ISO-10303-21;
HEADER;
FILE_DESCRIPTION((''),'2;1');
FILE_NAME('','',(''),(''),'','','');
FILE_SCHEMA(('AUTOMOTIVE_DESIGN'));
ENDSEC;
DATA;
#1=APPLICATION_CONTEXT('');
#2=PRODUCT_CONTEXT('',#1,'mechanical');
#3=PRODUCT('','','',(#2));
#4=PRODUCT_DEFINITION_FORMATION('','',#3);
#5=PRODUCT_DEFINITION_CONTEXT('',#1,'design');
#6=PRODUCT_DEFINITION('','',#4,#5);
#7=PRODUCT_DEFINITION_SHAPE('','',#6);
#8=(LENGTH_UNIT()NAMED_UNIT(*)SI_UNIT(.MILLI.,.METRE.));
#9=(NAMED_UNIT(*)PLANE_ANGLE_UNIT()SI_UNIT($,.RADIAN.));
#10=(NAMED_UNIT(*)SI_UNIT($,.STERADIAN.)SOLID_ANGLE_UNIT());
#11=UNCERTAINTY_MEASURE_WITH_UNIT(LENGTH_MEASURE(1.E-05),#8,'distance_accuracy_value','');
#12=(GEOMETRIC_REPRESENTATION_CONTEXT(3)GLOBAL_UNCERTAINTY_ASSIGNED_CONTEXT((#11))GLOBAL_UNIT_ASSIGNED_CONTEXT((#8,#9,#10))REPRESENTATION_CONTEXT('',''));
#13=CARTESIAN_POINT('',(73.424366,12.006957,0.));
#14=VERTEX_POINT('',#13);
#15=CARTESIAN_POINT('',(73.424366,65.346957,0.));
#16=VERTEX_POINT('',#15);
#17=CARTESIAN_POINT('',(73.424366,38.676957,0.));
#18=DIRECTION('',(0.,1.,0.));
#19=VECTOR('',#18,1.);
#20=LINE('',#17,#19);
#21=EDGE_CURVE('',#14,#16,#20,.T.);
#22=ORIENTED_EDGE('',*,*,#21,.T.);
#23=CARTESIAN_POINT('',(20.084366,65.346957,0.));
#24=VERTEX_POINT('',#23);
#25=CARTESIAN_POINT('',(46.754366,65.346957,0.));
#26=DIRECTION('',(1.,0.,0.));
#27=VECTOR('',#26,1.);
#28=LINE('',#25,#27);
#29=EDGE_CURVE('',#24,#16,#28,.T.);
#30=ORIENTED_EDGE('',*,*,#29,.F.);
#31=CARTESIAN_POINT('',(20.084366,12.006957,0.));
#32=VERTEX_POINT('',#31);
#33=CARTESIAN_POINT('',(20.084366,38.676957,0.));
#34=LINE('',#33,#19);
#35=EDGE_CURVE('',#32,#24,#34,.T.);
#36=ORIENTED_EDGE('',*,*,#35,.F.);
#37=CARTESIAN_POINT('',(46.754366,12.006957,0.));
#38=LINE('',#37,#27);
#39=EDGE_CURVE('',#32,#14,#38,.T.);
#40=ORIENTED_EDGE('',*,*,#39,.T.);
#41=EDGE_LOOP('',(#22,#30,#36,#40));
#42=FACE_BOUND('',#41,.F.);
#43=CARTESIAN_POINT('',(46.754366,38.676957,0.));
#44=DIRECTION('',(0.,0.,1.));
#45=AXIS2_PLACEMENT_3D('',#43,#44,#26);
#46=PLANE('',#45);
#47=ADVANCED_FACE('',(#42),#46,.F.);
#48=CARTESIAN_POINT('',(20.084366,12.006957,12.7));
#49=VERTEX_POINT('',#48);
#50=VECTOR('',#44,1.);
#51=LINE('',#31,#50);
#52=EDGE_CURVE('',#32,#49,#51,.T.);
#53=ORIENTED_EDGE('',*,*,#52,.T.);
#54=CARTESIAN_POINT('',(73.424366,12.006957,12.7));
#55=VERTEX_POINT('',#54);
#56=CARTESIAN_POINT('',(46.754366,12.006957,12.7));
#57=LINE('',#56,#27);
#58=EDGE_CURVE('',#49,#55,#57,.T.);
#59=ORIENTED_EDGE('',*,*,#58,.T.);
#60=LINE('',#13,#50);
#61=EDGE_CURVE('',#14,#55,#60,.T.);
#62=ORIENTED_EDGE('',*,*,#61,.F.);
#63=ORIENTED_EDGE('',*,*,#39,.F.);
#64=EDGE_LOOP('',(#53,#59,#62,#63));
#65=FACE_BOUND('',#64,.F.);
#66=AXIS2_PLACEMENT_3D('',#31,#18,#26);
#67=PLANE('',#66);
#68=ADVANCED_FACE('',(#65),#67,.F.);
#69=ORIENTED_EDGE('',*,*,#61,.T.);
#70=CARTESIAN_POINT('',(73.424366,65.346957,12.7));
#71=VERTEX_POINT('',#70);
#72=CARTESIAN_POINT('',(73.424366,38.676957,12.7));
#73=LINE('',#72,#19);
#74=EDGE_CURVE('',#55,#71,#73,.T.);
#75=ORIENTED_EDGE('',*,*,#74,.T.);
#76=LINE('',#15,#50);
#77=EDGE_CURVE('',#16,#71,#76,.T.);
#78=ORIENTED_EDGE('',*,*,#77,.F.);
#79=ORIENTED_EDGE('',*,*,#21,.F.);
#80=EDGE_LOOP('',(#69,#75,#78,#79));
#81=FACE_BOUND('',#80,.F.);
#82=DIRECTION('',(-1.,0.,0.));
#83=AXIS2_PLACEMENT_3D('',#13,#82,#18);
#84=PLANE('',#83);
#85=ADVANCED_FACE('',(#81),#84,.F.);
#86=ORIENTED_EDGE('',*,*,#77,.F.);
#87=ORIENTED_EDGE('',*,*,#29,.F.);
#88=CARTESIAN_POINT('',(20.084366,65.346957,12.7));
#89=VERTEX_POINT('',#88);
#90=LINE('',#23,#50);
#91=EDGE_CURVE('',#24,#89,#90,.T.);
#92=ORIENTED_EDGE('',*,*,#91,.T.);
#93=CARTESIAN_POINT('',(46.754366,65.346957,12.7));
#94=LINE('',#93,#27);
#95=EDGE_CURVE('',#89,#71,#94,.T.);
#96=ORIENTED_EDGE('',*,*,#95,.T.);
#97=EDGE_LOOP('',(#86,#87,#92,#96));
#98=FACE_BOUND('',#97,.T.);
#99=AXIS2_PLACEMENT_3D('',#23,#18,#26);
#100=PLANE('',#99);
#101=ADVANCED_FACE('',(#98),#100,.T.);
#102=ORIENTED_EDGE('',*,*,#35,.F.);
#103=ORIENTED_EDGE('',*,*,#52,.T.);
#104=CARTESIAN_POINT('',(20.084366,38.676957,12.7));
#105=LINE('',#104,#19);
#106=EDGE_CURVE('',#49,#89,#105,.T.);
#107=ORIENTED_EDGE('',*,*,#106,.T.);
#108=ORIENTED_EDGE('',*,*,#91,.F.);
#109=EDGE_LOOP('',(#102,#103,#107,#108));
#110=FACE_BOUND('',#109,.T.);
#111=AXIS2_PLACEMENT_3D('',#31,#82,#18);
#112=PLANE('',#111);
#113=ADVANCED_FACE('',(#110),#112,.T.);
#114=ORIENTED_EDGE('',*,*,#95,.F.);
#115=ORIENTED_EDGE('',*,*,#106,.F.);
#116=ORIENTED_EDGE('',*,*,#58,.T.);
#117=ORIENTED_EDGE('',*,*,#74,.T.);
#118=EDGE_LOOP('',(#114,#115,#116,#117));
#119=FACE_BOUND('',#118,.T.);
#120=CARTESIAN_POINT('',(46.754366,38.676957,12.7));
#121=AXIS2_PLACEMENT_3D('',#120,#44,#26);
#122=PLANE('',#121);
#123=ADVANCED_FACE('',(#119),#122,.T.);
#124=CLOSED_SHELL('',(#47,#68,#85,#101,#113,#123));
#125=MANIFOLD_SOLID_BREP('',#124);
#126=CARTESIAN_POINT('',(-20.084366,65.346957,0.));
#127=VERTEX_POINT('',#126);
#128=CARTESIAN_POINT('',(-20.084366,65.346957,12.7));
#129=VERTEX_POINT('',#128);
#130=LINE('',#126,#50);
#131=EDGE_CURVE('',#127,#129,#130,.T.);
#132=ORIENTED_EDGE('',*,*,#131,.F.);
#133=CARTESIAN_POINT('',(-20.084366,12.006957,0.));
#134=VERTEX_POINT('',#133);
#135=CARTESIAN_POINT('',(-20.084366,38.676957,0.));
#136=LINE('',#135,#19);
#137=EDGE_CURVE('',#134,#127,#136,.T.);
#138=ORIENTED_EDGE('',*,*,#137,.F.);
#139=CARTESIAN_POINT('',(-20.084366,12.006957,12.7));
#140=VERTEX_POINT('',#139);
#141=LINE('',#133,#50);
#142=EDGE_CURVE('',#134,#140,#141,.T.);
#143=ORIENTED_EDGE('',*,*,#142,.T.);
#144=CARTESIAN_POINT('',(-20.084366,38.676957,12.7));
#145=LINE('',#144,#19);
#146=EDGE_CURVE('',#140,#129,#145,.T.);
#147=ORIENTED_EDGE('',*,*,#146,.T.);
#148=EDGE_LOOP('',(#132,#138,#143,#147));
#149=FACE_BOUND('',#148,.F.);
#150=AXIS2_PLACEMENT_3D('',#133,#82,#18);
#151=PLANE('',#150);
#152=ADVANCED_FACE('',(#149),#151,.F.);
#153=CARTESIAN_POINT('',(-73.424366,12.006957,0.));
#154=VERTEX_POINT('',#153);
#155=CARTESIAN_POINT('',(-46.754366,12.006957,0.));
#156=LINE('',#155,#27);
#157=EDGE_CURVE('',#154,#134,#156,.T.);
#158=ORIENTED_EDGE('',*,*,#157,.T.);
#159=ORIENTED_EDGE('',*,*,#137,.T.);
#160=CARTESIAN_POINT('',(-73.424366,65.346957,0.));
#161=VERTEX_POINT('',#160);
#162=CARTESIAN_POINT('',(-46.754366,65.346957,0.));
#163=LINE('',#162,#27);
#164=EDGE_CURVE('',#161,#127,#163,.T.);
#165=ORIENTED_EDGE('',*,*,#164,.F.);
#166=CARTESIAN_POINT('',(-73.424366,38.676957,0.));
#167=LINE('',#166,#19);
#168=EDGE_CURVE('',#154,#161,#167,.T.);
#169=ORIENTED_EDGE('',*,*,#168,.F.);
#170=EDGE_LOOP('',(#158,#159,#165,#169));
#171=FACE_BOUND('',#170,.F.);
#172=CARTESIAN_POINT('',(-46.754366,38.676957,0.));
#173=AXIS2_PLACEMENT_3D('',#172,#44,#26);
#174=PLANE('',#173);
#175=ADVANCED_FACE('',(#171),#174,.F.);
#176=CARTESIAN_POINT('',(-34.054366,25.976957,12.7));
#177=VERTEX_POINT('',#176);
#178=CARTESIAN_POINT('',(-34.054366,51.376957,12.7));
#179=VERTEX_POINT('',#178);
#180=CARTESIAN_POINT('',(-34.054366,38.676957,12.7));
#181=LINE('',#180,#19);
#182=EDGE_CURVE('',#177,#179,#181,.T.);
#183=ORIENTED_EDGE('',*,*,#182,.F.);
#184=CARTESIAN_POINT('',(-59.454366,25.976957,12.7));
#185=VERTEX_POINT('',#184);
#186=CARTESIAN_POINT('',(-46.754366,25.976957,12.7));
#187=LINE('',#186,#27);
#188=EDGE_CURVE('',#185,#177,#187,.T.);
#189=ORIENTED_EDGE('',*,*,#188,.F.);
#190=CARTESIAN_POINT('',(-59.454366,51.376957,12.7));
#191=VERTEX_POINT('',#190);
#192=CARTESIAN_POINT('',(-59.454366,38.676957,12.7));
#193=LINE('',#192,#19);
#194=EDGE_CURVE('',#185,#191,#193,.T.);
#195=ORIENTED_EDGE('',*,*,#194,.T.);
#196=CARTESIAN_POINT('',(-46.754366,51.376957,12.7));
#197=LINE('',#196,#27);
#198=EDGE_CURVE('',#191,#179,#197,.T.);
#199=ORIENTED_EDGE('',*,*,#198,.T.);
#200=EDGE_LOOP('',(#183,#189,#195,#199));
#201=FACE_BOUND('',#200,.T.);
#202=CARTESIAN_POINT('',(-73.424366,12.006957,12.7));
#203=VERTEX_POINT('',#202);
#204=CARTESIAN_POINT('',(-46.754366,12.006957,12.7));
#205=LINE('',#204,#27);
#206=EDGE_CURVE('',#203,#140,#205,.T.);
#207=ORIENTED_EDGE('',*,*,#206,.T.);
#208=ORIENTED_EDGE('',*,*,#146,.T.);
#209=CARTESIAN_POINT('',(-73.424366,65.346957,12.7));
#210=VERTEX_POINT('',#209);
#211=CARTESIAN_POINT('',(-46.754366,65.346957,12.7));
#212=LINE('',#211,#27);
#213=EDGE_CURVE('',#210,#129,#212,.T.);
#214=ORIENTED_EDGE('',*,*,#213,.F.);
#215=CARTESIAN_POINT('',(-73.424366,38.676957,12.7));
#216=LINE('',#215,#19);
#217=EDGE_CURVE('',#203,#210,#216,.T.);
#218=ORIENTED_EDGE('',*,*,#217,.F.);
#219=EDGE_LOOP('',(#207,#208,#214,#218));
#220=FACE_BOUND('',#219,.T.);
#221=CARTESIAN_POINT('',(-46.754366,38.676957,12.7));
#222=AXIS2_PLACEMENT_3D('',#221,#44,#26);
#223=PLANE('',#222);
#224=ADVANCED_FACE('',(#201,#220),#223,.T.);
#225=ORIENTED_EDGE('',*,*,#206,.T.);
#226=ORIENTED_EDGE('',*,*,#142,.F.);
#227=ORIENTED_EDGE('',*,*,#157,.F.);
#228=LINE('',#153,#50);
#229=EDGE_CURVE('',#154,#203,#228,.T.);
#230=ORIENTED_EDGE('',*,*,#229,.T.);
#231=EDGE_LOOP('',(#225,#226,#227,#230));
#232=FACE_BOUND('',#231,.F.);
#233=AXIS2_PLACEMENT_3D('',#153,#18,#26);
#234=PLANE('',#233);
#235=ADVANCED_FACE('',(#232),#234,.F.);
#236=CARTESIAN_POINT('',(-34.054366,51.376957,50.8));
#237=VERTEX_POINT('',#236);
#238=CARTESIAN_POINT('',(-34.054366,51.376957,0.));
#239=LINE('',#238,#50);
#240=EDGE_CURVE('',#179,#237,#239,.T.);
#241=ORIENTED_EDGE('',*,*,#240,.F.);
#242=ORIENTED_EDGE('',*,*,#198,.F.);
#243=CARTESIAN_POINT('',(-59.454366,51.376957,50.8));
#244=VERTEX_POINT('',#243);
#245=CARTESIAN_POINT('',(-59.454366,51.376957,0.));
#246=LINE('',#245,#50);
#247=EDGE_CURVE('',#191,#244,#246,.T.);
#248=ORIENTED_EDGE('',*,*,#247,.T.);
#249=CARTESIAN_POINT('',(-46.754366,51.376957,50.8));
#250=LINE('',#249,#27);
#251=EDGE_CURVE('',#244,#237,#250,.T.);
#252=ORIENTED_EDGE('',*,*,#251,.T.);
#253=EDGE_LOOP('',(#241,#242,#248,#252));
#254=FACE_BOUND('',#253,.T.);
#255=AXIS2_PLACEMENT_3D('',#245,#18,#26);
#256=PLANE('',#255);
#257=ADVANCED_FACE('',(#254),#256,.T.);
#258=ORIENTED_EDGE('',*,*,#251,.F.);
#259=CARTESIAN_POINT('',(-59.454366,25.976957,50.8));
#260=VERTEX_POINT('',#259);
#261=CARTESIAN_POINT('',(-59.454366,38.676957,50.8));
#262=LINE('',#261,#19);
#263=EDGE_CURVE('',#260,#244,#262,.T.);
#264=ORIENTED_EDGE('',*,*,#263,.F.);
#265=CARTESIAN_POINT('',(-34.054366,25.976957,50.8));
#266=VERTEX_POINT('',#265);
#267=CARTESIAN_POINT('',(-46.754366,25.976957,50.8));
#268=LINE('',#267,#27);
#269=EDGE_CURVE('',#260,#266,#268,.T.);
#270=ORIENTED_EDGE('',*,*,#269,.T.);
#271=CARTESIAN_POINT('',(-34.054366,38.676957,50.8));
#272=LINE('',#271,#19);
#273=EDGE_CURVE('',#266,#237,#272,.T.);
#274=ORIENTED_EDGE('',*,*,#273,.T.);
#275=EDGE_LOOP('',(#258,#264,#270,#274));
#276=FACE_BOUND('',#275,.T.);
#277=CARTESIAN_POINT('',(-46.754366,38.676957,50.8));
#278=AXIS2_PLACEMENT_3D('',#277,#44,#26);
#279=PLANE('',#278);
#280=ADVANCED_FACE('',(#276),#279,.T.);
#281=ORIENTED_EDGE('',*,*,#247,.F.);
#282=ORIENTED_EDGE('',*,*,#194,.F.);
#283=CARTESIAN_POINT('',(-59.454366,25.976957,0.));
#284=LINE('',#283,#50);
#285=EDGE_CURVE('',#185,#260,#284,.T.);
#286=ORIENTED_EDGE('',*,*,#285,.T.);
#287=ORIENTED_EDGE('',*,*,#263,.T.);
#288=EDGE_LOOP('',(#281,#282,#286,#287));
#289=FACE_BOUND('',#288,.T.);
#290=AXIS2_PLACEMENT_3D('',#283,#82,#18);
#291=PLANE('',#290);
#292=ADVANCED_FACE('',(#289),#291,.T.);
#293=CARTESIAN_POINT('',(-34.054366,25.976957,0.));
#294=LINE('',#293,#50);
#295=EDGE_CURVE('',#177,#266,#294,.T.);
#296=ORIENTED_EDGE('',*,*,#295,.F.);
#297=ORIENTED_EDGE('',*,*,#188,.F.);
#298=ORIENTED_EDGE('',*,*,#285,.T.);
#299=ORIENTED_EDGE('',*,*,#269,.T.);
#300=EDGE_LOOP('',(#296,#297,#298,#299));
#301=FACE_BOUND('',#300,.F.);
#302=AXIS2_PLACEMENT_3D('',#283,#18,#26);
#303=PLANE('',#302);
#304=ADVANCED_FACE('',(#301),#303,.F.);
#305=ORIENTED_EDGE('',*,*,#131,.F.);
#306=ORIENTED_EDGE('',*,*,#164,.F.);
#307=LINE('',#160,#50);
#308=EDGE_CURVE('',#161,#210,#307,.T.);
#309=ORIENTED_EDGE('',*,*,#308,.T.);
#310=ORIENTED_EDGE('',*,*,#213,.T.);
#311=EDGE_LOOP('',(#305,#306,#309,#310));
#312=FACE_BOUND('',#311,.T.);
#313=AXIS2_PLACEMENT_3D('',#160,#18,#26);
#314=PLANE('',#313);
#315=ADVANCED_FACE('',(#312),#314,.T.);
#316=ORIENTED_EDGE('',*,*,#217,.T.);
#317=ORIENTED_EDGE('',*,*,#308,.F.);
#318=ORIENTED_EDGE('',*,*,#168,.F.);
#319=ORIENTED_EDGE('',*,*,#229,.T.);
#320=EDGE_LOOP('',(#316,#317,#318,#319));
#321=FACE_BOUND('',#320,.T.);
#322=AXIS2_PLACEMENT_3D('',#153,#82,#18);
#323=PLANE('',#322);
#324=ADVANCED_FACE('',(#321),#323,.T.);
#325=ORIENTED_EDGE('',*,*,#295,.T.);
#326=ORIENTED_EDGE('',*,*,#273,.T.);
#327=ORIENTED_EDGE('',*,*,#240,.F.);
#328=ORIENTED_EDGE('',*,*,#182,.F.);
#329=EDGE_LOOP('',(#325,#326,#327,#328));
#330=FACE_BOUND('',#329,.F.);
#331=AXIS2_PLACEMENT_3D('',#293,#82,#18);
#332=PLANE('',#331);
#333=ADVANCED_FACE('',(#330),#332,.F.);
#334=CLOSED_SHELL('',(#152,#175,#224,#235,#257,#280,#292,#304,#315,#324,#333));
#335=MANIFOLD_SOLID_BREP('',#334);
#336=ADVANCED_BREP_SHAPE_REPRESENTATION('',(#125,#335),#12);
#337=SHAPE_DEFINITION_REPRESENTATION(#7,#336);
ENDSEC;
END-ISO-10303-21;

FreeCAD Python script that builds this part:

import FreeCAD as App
import Part
import Sketcher

V = App.Vector
Q = App.Units.Quantity


def add_polygon(sketch, points):
    """Adds a closed chain of lines whose ends are joined by coincident constraints."""
    first, n = sketch.GeometryCount, len(points)
    for a, b in zip(points, points[1:] + points[:1]):
        sketch.addGeometry(Part.LineSegment(App.Vector(*a, 0), App.Vector(*b, 0)), False)
    for i in range(n):
        sketch.addConstraint(Sketcher.Constraint("Coincident", first + i, 2, first + (i + 1) % n, 1))

doc = App.newDocument("Part")
body = doc.addObject("PartDesign::Body", "Body")
body.AllowCompound = True

sketch1 = body.newObject("Sketcher::SketchObject", "Sketch")
sketch1.AttachmentSupport = (doc.getObject("XY_Plane"), [""])
sketch1.MapMode = "FlatFace"
add_polygon(sketch1, [(-73, 65), (-73, 12), (-20, 12), (-20, 65)])
add_polygon(sketch1, [(-34, 26), (-59, 26), (-59, 51), (-34, 51)])
add_polygon(sketch1, [(20, 65), (20, 12), (73, 12), (73, 65)])
sketch1.addConstraint(Sketcher.Constraint("Vertical", 0))
sketch1.addConstraint(Sketcher.Constraint("Horizontal", 1))
sketch1.addConstraint(Sketcher.Constraint("Vertical", 2))
sketch1.addConstraint(Sketcher.Constraint("Horizontal", 3))
sketch1.addConstraint(Sketcher.Constraint("Horizontal", 4))
sketch1.addConstraint(Sketcher.Constraint("Vertical", 5))
sketch1.addConstraint(Sketcher.Constraint("Horizontal", 6))
sketch1.addConstraint(Sketcher.Constraint("Vertical", 7))
sketch1.addConstraint(Sketcher.Constraint("Vertical", 8))
sketch1.addConstraint(Sketcher.Constraint("Horizontal", 9))
sketch1.addConstraint(Sketcher.Constraint("Vertical", 10))
sketch1.addConstraint(Sketcher.Constraint("Horizontal", 11))
sketch1.addConstraint(Sketcher.Constraint("Symmetric", 1, 2, 8, 2, -2))
sketch1.addConstraint(Sketcher.Constraint("Symmetric", 3, 2, 10, 2, -2))
sketch1.addConstraint(Sketcher.Constraint("Equal", 11, 0))
sketch1.addConstraint(Sketcher.Constraint("Equal", 6, 5))
sketch1.addConstraint(Sketcher.Constraint("DistanceX", 4, 2, 4, 1, Q("1 in")))
sketch1.addConstraint(Sketcher.Constraint("DistanceX", 1, 1, 1, 2, Q("2.1 in")))
sketch1.addConstraint(Sketcher.Constraint("DistanceX", 0, 2, 4, 2, Q("0.55 in")))
sketch1.addConstraint(Sketcher.Constraint("DistanceY", 0, 2, 4, 2, Q("0.55 in")))
sketch1.addConstraint(Sketcher.Constraint("DistanceX", 4, 2, 8, 2, Q("79.538732 mm")))
sketch1.addConstraint(Sketcher.Constraint("DistanceY", -1, 1, 0, 2, Q("12.006957 mm")))
pad1 = body.newObject("PartDesign::Pad", "Pad")
pad1.Profile = sketch1
pad1.Length = Q("0.5 in")

sketch2 = body.newObject("Sketcher::SketchObject", "Sketch001")
sketch2.AttachmentSupport = (doc.getObject("XY_Plane"), [""])
sketch2.MapMode = "FlatFace"
add_polygon(sketch2, [(-59, 51), (-59, 26), (-34, 26), (-34, 51)])
sketch2.addConstraint(Sketcher.Constraint("Vertical", 0))
sketch2.addConstraint(Sketcher.Constraint("Horizontal", 1))
sketch2.addConstraint(Sketcher.Constraint("Vertical", 2))
sketch2.addConstraint(Sketcher.Constraint("Horizontal", 3))
sketch2.addConstraint(Sketcher.Constraint("Equal", 3, 0))
sketch2.addConstraint(Sketcher.Constraint("DistanceX", 1, 1, 1, 2, Q("1 in")))
sketch2.addConstraint(Sketcher.Constraint("DistanceX", 0, 2, -1, 1, Q("59.454366 mm")))
sketch2.addConstraint(Sketcher.Constraint("DistanceY", -1, 1, 0, 2, Q("25.976957 mm")))
pad2 = body.newObject("PartDesign::Pad", "Pad001")
pad2.Profile = sketch2
pad2.Length = Q("2 in")

doc.recompute()
